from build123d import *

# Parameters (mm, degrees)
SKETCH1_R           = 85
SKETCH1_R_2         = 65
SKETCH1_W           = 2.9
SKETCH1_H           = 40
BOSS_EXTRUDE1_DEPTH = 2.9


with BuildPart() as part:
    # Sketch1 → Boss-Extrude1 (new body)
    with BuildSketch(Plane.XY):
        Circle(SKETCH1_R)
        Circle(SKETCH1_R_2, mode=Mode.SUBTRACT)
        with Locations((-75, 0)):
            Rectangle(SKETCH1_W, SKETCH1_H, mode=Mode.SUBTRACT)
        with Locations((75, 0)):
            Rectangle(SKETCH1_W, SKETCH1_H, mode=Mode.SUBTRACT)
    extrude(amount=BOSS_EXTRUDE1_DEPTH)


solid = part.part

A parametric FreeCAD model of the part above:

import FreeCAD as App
import Part
import Sketcher

V = App.Vector


def add_polygon(sketch, points):
    """Adds a closed chain of lines whose ends are joined by coincident constraints."""
    first, n = sketch.GeometryCount, len(points)
    for a, b in zip(points, points[1:] + points[:1]):
        sketch.addGeometry(Part.LineSegment(App.Vector(*a, 0), App.Vector(*b, 0)), False)
    for i in range(n):
        sketch.addConstraint(Sketcher.Constraint("Coincident", first + i, 2, first + (i + 1) % n, 1))

doc = App.newDocument("Part")
params = doc.addObject("Spreadsheet::Sheet", "Params")
for row, (alias, value) in enumerate([
    ("sketch1_diameter", "170 mm"),
    ("sketch1_diameter2", "130 mm"),
    ("sketch1_height", "40 mm"),
    ("sketch1_width", "2.9 mm"),
    ("pad1_length", "2.9 mm"),
], start=1):
    params.set(f"A{row}", alias)
    params.set(f"B{row}", "=" + value)
    params.setAlias(f"B{row}", alias)

body = doc.addObject("PartDesign::Body", "Body")

# Sketch on XY plane
sketch1 = doc.addObject("Sketcher::SketchObject", "Sketch")
body.addObject(sketch1)
sketch1.AttachmentSupport = (doc.XY_Plane, [""])
sketch1.MapMode = "FlatFace"
sketch1.addGeometry(Part.Circle(V(0, 0, 0), V(0, 0, 1), 85), False)  # 0
add_polygon(sketch1, [(-73.5, -20), (-76.5, -20), (-76.5, 20), (-73.5, 20)])  # lines 1-4
sketch1.addGeometry(Part.Circle(V(0, 0, 0), V(0, 0, 1), 65), False)  # 5
add_polygon(sketch1, [(76.5, -20), (73.5, -20), (73.5, 20), (76.5, 20)])  # lines 6-9
sketch1.addConstraint(Sketcher.Constraint("Horizontal", 1))
sketch1.addConstraint(Sketcher.Constraint("Vertical", 2))
sketch1.addConstraint(Sketcher.Constraint("Horizontal", 3))
sketch1.addConstraint(Sketcher.Constraint("Vertical", 4))
sketch1.addConstraint(Sketcher.Constraint("Horizontal", 6))
sketch1.addConstraint(Sketcher.Constraint("Vertical", 7))
sketch1.addConstraint(Sketcher.Constraint("Horizontal", 8))
sketch1.addConstraint(Sketcher.Constraint("Vertical", 9))
sketch1.addConstraint(Sketcher.Constraint("Coincident", 0, 3, -1, 1))
sketch1.addConstraint(Sketcher.Constraint("Coincident", 5, 3, -1, 1))
sketch1.addConstraint(Sketcher.Constraint("Symmetric", 3, 2, 6, 2, -1, 1))
sketch1.addConstraint(Sketcher.Constraint("Symmetric", 1, 2, 8, 2, -1, 1))
sketch1.addConstraint(Sketcher.Constraint("Horizontal", 4, 2, 6, 2))
sketch1.addConstraint(Sketcher.Constraint("Diameter", 0, 170.0))
sketch1.addConstraint(Sketcher.Constraint("Diameter", 5, 130.0))
sketch1.addConstraint(Sketcher.Constraint("DistanceY", 2, 1, 2, 2, 40.0))
sketch1.addConstraint(Sketcher.Constraint("DistanceX", 1, 2, 1, 1, 2.9))
sketch1.addConstraint(Sketcher.Constraint("DistanceX", 1, 2, 6, 2, 150.0))
sketch1.setExpression("Constraints[21]", "Params.sketch1_diameter")
sketch1.setExpression("Constraints[22]", "Params.sketch1_diameter2")
sketch1.setExpression("Constraints[23]", "Params.sketch1_height")
sketch1.setExpression("Constraints[24]", "Params.sketch1_width")
pad1 = doc.addObject("PartDesign::Pad", "Pad")
body.addObject(pad1)
pad1.Profile = sketch1
pad1.setExpression("Length", "Params.pad1_length")

doc.recompute()
